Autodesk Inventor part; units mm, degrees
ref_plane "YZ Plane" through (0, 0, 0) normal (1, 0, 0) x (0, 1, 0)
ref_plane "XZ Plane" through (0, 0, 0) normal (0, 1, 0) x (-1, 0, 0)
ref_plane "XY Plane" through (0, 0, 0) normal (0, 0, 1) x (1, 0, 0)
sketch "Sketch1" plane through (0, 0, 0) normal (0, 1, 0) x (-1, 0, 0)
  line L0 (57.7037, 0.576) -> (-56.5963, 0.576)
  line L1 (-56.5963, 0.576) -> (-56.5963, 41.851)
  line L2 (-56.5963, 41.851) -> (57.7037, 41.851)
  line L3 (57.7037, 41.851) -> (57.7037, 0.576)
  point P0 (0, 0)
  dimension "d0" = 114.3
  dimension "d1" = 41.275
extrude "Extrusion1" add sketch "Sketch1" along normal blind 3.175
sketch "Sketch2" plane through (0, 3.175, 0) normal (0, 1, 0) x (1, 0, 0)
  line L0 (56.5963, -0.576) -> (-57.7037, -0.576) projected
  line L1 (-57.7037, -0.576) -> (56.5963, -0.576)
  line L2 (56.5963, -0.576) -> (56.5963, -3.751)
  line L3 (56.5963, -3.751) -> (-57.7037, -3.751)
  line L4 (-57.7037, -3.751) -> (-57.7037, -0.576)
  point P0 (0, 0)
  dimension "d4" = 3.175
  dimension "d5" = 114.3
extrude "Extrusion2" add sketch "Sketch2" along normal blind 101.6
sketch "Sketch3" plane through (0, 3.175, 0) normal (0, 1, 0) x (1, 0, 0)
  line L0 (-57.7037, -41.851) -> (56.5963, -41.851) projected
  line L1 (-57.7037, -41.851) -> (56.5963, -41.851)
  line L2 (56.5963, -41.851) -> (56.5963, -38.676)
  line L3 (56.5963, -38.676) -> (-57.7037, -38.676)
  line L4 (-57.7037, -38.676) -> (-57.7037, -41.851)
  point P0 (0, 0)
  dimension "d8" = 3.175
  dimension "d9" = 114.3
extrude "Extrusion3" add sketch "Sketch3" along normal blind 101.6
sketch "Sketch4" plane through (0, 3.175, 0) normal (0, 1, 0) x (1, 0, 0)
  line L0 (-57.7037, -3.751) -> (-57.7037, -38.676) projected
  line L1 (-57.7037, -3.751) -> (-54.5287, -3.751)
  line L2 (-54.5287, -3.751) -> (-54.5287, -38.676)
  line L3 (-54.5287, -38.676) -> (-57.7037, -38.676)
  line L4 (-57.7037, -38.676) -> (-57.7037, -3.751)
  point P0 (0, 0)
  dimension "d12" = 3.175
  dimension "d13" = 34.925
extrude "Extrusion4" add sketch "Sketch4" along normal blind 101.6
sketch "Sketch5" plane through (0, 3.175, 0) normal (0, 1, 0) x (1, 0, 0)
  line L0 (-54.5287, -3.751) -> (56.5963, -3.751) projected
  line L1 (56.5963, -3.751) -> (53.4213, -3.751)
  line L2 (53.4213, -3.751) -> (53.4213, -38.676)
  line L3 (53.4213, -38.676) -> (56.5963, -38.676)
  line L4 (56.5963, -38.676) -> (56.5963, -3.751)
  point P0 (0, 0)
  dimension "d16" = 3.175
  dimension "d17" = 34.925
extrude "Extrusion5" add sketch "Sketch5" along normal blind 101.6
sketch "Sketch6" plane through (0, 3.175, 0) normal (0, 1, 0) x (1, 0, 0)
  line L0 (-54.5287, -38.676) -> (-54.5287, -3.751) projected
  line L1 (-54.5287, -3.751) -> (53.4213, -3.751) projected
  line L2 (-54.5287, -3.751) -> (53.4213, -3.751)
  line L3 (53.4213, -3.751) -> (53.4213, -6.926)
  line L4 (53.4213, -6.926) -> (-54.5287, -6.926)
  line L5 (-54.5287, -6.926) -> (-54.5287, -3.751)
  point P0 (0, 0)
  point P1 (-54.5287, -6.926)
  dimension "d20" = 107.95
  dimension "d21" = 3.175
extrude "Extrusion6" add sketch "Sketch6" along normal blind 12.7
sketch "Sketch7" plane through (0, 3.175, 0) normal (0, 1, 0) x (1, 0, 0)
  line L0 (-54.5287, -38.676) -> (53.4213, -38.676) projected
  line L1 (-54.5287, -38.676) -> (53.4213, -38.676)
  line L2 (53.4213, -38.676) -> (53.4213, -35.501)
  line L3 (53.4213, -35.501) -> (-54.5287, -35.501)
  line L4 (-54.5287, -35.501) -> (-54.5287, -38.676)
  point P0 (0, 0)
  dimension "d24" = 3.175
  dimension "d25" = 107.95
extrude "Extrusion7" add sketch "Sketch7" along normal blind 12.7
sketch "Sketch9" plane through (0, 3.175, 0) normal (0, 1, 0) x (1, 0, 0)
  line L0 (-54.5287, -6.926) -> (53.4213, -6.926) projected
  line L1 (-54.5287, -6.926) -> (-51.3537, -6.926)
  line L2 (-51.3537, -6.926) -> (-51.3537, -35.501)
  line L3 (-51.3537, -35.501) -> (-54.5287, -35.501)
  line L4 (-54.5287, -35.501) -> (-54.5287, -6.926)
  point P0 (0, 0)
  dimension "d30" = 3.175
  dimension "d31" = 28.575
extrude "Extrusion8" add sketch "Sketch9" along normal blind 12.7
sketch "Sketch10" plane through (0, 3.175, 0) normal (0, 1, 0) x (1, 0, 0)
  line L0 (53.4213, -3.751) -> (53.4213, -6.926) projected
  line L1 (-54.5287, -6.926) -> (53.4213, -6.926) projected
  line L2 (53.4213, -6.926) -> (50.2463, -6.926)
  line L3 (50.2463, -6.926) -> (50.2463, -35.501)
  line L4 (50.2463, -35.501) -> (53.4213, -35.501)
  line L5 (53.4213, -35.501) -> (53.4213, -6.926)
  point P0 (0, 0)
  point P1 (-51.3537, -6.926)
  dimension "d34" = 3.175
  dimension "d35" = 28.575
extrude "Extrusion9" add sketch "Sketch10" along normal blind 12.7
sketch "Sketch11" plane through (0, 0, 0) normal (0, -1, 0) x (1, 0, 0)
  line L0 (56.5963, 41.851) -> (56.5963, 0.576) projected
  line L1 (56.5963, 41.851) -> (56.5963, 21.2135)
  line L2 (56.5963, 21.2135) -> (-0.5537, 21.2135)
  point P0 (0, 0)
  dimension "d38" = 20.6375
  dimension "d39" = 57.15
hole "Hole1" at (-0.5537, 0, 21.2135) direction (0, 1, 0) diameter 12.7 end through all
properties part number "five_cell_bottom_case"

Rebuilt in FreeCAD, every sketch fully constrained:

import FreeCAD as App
import Part
import Sketcher

V = App.Vector
Q = App.Units.Quantity

doc = App.newDocument("Part")
params = doc.addObject("Spreadsheet::Sheet", "Params")
for row, (alias, value) in enumerate([
    ("sketch1_width", "4.5 in"),
    ("sketch1_height", "1.625 in"),
    ("pad1_length", "0.125 in"),
    ("sketch2_width", "4.5 in"),
    ("sketch2_height", "0.125 in"),
    ("pad2_length", "4 in"),
    ("sketch3_width", "4.5 in"),
    ("sketch3_height", "0.125 in"),
    ("pad3_length", "4 in"),
    ("sketch4_width", "0.125 in"),
    ("sketch4_height", "1.375 in"),
    ("pad4_length", "4 in"),
    ("sketch5_width", "0.125 in"),
    ("sketch5_height", "1.375 in"),
    ("pad5_length", "4 in"),
    ("sketch6_width", "4.25 in"),
    ("sketch6_height", "0.125 in"),
    ("pad6_length", "0.5 in"),
    ("sketch7_width", "4.25 in"),
    ("sketch7_height", "0.125 in"),
    ("pad7_length", "0.5 in"),
    ("sketch8_width", "0.125 in"),
    ("sketch8_height", "1.125 in"),
    ("pad8_length", "0.5 in"),
    ("sketch9_width", "0.125 in"),
    ("sketch9_height", "1.125 in"),
    ("pad9_length", "0.5 in"),
    ("sketch10_diameter", "0.5 in"),
    ("hole_diameter", "0.5 in"),
], start=1):
    params.set(f"A{row}", alias)
    params.set(f"B{row}", "=" + value)
    params.setAlias(f"B{row}", alias)

body = doc.addObject("PartDesign::Body", "Body")

sketch1 = body.newObject("Sketcher::SketchObject", "Sketch")
sketch1.AttachmentSupport = (doc.getObject("XZ_Plane"), [""])
sketch1.MapMode = "FlatFace"
sketch1.addGeometry(Part.LineSegment(V(56.5963, 0.576, 0), V(-57.7037, 0.576, 0)), False)
sketch1.addGeometry(Part.LineSegment(V(-57.7037, 0.576, 0), V(-57.7037, 41.851, 0)), False)
sketch1.addGeometry(Part.LineSegment(V(-57.7037, 41.851, 0), V(56.5963, 41.851, 0)), False)
sketch1.addGeometry(Part.LineSegment(V(56.5963, 41.851, 0), V(56.5963, 0.576, 0)), False)
sketch1.addConstraint(Sketcher.Constraint("Coincident", 0, 2, 1, 1))
sketch1.addConstraint(Sketcher.Constraint("Coincident", 1, 2, 2, 1))
sketch1.addConstraint(Sketcher.Constraint("Coincident", 2, 2, 3, 1))
sketch1.addConstraint(Sketcher.Constraint("Coincident", 3, 2, 0, 1))
sketch1.addConstraint(Sketcher.Constraint("Horizontal", 0))
sketch1.addConstraint(Sketcher.Constraint("Vertical", 1))
sketch1.addConstraint(Sketcher.Constraint("Horizontal", 2))
sketch1.addConstraint(Sketcher.Constraint("Vertical", 3))
sketch1.addConstraint(Sketcher.Constraint("DistanceX", 0, 2, 0, 1, Q("4.5 in")))
sketch1.addConstraint(Sketcher.Constraint("DistanceY", 1, 1, 1, 2, Q("1.625 in")))
sketch1.addConstraint(Sketcher.Constraint("DistanceX", 0, 2, -1, 1, Q("2.2718 in")))
sketch1.addConstraint(Sketcher.Constraint("DistanceY", -1, 1, 0, 2, 0.576))
sketch1.setExpression("Constraints[8]", "Params.sketch1_width")
sketch1.setExpression("Constraints[9]", "Params.sketch1_height")
pad1 = body.newObject("PartDesign::Pad", "Pad")
pad1.Profile = sketch1
pad1.setExpression("Length", "Params.pad1_length")
pad1.Reversed = True

sketch2 = body.newObject("Sketcher::SketchObject", "Sketch001")
sketch2.AttachmentSupport = (doc.getObject("XZ_Plane"), [""])
sketch2.MapMode = "FlatFace"
sketch2.AttachmentOffset = App.Placement(V(0, 0, -0.125 * 25.4), App.Rotation())
sketch2.addGeometry(Part.LineSegment(V(56.5963, 3.751, 0), V(56.5963, 0.576, 0)), False)
sketch2.addGeometry(Part.LineSegment(V(56.5963, 0.576, 0), V(-57.7037, 0.576, 0)), False)
sketch2.addGeometry(Part.LineSegment(V(-57.7037, 0.576, 0), V(-57.7037, 3.751, 0)), False)
sketch2.addGeometry(Part.LineSegment(V(-57.7037, 3.751, 0), V(56.5963, 3.751, 0)), False)
sketch2.addConstraint(Sketcher.Constraint("Coincident", 0, 2, 1, 1))
sketch2.addConstraint(Sketcher.Constraint("Coincident", 1, 2, 2, 1))
sketch2.addConstraint(Sketcher.Constraint("Coincident", 2, 2, 3, 1))
sketch2.addConstraint(Sketcher.Constraint("Coincident", 3, 2, 0, 1))
sketch2.addConstraint(Sketcher.Constraint("Vertical", 0))
sketch2.addConstraint(Sketcher.Constraint("Horizontal", 1))
sketch2.addConstraint(Sketcher.Constraint("Vertical", 2))
sketch2.addConstraint(Sketcher.Constraint("Horizontal", 3))
sketch2.addConstraint(Sketcher.Constraint("DistanceX", 1, 2, 1, 1, Q("4.5 in")))
sketch2.addConstraint(Sketcher.Constraint("DistanceY", 0, 2, 0, 1, Q("0.125 in")))
sketch2.addConstraint(Sketcher.Constraint("DistanceX", -1, 1, 0, 2, Q("2.2282 in")))
sketch2.addConstraint(Sketcher.Constraint("DistanceY", -1, 1, 0, 2, 0.576))
sketch2.setExpression("Constraints[8]", "Params.sketch2_width")
sketch2.setExpression("Constraints[9]", "Params.sketch2_height")
pad2 = body.newObject("PartDesign::Pad", "Pad001")
pad2.Profile = sketch2
pad2.setExpression("Length", "Params.pad2_length")
pad2.Reversed = True

sketch3 = body.newObject("Sketcher::SketchObject", "Sketch002")
sketch3.AttachmentSupport = (doc.getObject("XZ_Plane"), [""])
sketch3.MapMode = "FlatFace"
sketch3.AttachmentOffset = App.Placement(V(0, 0, -0.125 * 25.4), App.Rotation())
sketch3.addGeometry(Part.LineSegment(V(-57.7037, 38.676, 0), V(-57.7037, 41.851, 0)), False)
sketch3.addGeometry(Part.LineSegment(V(-57.7037, 41.851, 0), V(56.5963, 41.851, 0)), False)
sketch3.addGeometry(Part.LineSegment(V(56.5963, 41.851, 0), V(56.5963, 38.676, 0)), False)
sketch3.addGeometry(Part.LineSegment(V(56.5963, 38.676, 0), V(-57.7037, 38.676, 0)), False)
sketch3.addConstraint(Sketcher.Constraint("Coincident", 0, 2, 1, 1))
sketch3.addConstraint(Sketcher.Constraint("Coincident", 1, 2, 2, 1))
sketch3.addConstraint(Sketcher.Constraint("Coincident", 2, 2, 3, 1))
sketch3.addConstraint(Sketcher.Constraint("Coincident", 3, 2, 0, 1))
sketch3.addConstraint(Sketcher.Constraint("Vertical", 0))
sketch3.addConstraint(Sketcher.Constraint("Horizontal", 1))
sketch3.addConstraint(Sketcher.Constraint("Vertical", 2))
sketch3.addConstraint(Sketcher.Constraint("Horizontal", 3))
sketch3.addConstraint(Sketcher.Constraint("DistanceX", 1, 1, 1, 2, Q("4.5 in")))
sketch3.addConstraint(Sketcher.Constraint("DistanceY", 0, 1, 0, 2, Q("0.125 in")))
sketch3.addConstraint(Sketcher.Constraint("DistanceX", 0, 2, -1, 1, Q("2.2718 in")))
sketch3.addConstraint(Sketcher.Constraint("DistanceY", -1, 1, 0, 2, 41.851))
sketch3.setExpression("Constraints[8]", "Params.sketch3_width")
sketch3.setExpression("Constraints[9]", "Params.sketch3_height")
pad3 = body.newObject("PartDesign::Pad", "Pad002")
pad3.Profile = sketch3
pad3.setExpression("Length", "Params.pad3_length")
pad3.Reversed = True

sketch4 = body.newObject("Sketcher::SketchObject", "Sketch003")
sketch4.AttachmentSupport = (doc.getObject("XZ_Plane"), [""])
sketch4.MapMode = "FlatFace"
sketch4.AttachmentOffset = App.Placement(V(0, 0, -0.125 * 25.4), App.Rotation())
sketch4.addGeometry(Part.LineSegment(V(-54.5287, 3.751, 0), V(-57.7037, 3.751, 0)), False)
sketch4.addGeometry(Part.LineSegment(V(-57.7037, 3.751, 0), V(-57.7037, 38.676, 0)), False)
sketch4.addGeometry(Part.LineSegment(V(-57.7037, 38.676, 0), V(-54.5287, 38.676, 0)), False)
sketch4.addGeometry(Part.LineSegment(V(-54.5287, 38.676, 0), V(-54.5287, 3.751, 0)), False)
sketch4.addConstraint(Sketcher.Constraint("Coincident", 0, 2, 1, 1))
sketch4.addConstraint(Sketcher.Constraint("Coincident", 1, 2, 2, 1))
sketch4.addConstraint(Sketcher.Constraint("Coincident", 2, 2, 3, 1))
sketch4.addConstraint(Sketcher.Constraint("Coincident", 3, 2, 0, 1))
sketch4.addConstraint(Sketcher.Constraint("Horizontal", 0))
sketch4.addConstraint(Sketcher.Constraint("Vertical", 1))
sketch4.addConstraint(Sketcher.Constraint("Horizontal", 2))
sketch4.addConstraint(Sketcher.Constraint("Vertical", 3))
sketch4.addConstraint(Sketcher.Constraint("DistanceX", 0, 2, 0, 1, Q("0.125 in")))
sketch4.addConstraint(Sketcher.Constraint("DistanceY", 1, 1, 1, 2, Q("1.375 in")))
sketch4.addConstraint(Sketcher.Constraint("DistanceX", 0, 2, -1, 1, Q("2.2718 in")))
sketch4.addConstraint(Sketcher.Constraint("DistanceY", -1, 1, 0, 2, 3.751))
sketch4.setExpression("Constraints[8]", "Params.sketch4_width")
sketch4.setExpression("Constraints[9]", "Params.sketch4_height")
pad4 = body.newObject("PartDesign::Pad", "Pad003")
pad4.Profile = sketch4
pad4.setExpression("Length", "Params.pad4_length")
pad4.Reversed = True

sketch5 = body.newObject("Sketcher::SketchObject", "Sketch004")
sketch5.AttachmentSupport = (doc.getObject("XZ_Plane"), [""])
sketch5.MapMode = "FlatFace"
sketch5.AttachmentOffset = App.Placement(V(0, 0, -0.125 * 25.4), App.Rotation())
sketch5.addGeometry(Part.LineSegment(V(56.5963, 3.751, 0), V(53.4213, 3.751, 0)), False)
sketch5.addGeometry(Part.LineSegment(V(53.4213, 3.751, 0), V(53.4213, 38.676, 0)), False)
sketch5.addGeometry(Part.LineSegment(V(53.4213, 38.676, 0), V(56.5963, 38.676, 0)), False)
sketch5.addGeometry(Part.LineSegment(V(56.5963, 38.676, 0), V(56.5963, 3.751, 0)), False)
sketch5.addConstraint(Sketcher.Constraint("Coincident", 0, 2, 1, 1))
sketch5.addConstraint(Sketcher.Constraint("Coincident", 1, 2, 2, 1))
sketch5.addConstraint(Sketcher.Constraint("Coincident", 2, 2, 3, 1))
sketch5.addConstraint(Sketcher.Constraint("Coincident", 3, 2, 0, 1))
sketch5.addConstraint(Sketcher.Constraint("Horizontal", 0))
sketch5.addConstraint(Sketcher.Constraint("Vertical", 1))
sketch5.addConstraint(Sketcher.Constraint("Horizontal", 2))
sketch5.addConstraint(Sketcher.Constraint("Vertical", 3))
sketch5.addConstraint(Sketcher.Constraint("DistanceX", 0, 2, 0, 1, Q("0.125 in")))
sketch5.addConstraint(Sketcher.Constraint("DistanceY", 1, 1, 1, 2, Q("1.375 in")))
sketch5.addConstraint(Sketcher.Constraint("DistanceX", -1, 1, 0, 2, Q("2.1032 in")))
sketch5.addConstraint(Sketcher.Constraint("DistanceY", -1, 1, 0, 2, 3.751))
sketch5.setExpression("Constraints[8]", "Params.sketch5_width")
sketch5.setExpression("Constraints[9]", "Params.sketch5_height")
pad5 = body.newObject("PartDesign::Pad", "Pad004")
pad5.Profile = sketch5
pad5.setExpression("Length", "Params.pad5_length")
pad5.Reversed = True

sketch6 = body.newObject("Sketcher::SketchObject", "Sketch005")
sketch6.AttachmentSupport = (doc.getObject("XZ_Plane"), [""])
sketch6.MapMode = "FlatFace"
sketch6.AttachmentOffset = App.Placement(V(0, 0, -0.125 * 25.4), App.Rotation())
sketch6.addGeometry(Part.LineSegment(V(-54.5287, 3.751, 0), V(-54.5287, 6.926, 0)), False)
sketch6.addGeometry(Part.LineSegment(V(-54.5287, 6.926, 0), V(53.4213, 6.926, 0)), False)
sketch6.addGeometry(Part.LineSegment(V(53.4213, 6.926, 0), V(53.4213, 3.751, 0)), False)
sketch6.addGeometry(Part.LineSegment(V(53.4213, 3.751, 0), V(-54.5287, 3.751, 0)), False)
sketch6.addConstraint(Sketcher.Constraint("Coincident", 0, 2, 1, 1))
sketch6.addConstraint(Sketcher.Constraint("Coincident", 1, 2, 2, 1))
sketch6.addConstraint(Sketcher.Constraint("Coincident", 2, 2, 3, 1))
sketch6.addConstraint(Sketcher.Constraint("Coincident", 3, 2, 0, 1))
sketch6.addConstraint(Sketcher.Constraint("Vertical", 0))
sketch6.addConstraint(Sketcher.Constraint("Horizontal", 1))
sketch6.addConstraint(Sketcher.Constraint("Vertical", 2))
sketch6.addConstraint(Sketcher.Constraint("Horizontal", 3))
sketch6.addConstraint(Sketcher.Constraint("DistanceX", 1, 1, 1, 2, Q("4.25 in")))
sketch6.addConstraint(Sketcher.Constraint("DistanceY", 0, 1, 0, 2, Q("0.125 in")))
sketch6.addConstraint(Sketcher.Constraint("DistanceX", 0, 2, -1, 1, Q("2.1468 in")))
sketch6.addConstraint(Sketcher.Constraint("DistanceY", -1, 1, 0, 2, 6.926))
sketch6.setExpression("Constraints[8]", "Params.sketch6_width")
sketch6.setExpression("Constraints[9]", "Params.sketch6_height")
pad6 = body.newObject("PartDesign::Pad", "Pad005")
pad6.Profile = sketch6
pad6.setExpression("Length", "Params.pad6_length")
pad6.Reversed = True

sketch7 = body.newObject("Sketcher::SketchObject", "Sketch006")
sketch7.AttachmentSupport = (doc.getObject("XZ_Plane"), [""])
sketch7.MapMode = "FlatFace"
sketch7.AttachmentOffset = App.Placement(V(0, 0, -0.125 * 25.4), App.Rotation())
sketch7.addGeometry(Part.LineSegment(V(-54.5287, 35.501, 0), V(-54.5287, 38.676, 0)), False)
sketch7.addGeometry(Part.LineSegment(V(-54.5287, 38.676, 0), V(53.4213, 38.676, 0)), False)
sketch7.addGeometry(Part.LineSegment(V(53.4213, 38.676, 0), V(53.4213, 35.501, 0)), False)
sketch7.addGeometry(Part.LineSegment(V(53.4213, 35.501, 0), V(-54.5287, 35.501, 0)), False)
sketch7.addConstraint(Sketcher.Constraint("Coincident", 0, 2, 1, 1))
sketch7.addConstraint(Sketcher.Constraint("Coincident", 1, 2, 2, 1))
sketch7.addConstraint(Sketcher.Constraint("Coincident", 2, 2, 3, 1))
sketch7.addConstraint(Sketcher.Constraint("Coincident", 3, 2, 0, 1))
sketch7.addConstraint(Sketcher.Constraint("Vertical", 0))
sketch7.addConstraint(Sketcher.Constraint("Horizontal", 1))
sketch7.addConstraint(Sketcher.Constraint("Vertical", 2))
sketch7.addConstraint(Sketcher.Constraint("Horizontal", 3))
sketch7.addConstraint(Sketcher.Constraint("DistanceX", 1, 1, 1, 2, Q("4.25 in")))
sketch7.addConstraint(Sketcher.Constraint("DistanceY", 0, 1, 0, 2, Q("0.125 in")))
sketch7.addConstraint(Sketcher.Constraint("DistanceX", 0, 2, -1, 1, Q("2.1468 in")))
sketch7.addConstraint(Sketcher.Constraint("DistanceY", -1, 1, 0, 2, 38.676))
sketch7.setExpression("Constraints[8]", "Params.sketch7_width")
sketch7.setExpression("Constraints[9]", "Params.sketch7_height")
pad7 = body.newObject("PartDesign::Pad", "Pad006")
pad7.Profile = sketch7
pad7.setExpression("Length", "Params.pad7_length")
pad7.Reversed = True

sketch8 = body.newObject("Sketcher::SketchObject", "Sketch007")
sketch8.AttachmentSupport = (doc.getObject("XZ_Plane"), [""])
sketch8.MapMode = "FlatFace"
sketch8.AttachmentOffset = App.Placement(V(0, 0, -0.125 * 25.4), App.Rotation())
sketch8.addGeometry(Part.LineSegment(V(-51.3537, 6.926, 0), V(-54.5287, 6.926, 0)), False)
sketch8.addGeometry(Part.LineSegment(V(-54.5287, 6.926, 0), V(-54.5287, 35.501, 0)), False)
sketch8.addGeometry(Part.LineSegment(V(-54.5287, 35.501, 0), V(-51.3537, 35.501, 0)), False)
sketch8.addGeometry(Part.LineSegment(V(-51.3537, 35.501, 0), V(-51.3537, 6.926, 0)), False)
sketch8.addConstraint(Sketcher.Constraint("Coincident", 0, 2, 1, 1))
sketch8.addConstraint(Sketcher.Constraint("Coincident", 1, 2, 2, 1))
sketch8.addConstraint(Sketcher.Constraint("Coincident", 2, 2, 3, 1))
sketch8.addConstraint(Sketcher.Constraint("Coincident", 3, 2, 0, 1))
sketch8.addConstraint(Sketcher.Constraint("Horizontal", 0))
sketch8.addConstraint(Sketcher.Constraint("Vertical", 1))
sketch8.addConstraint(Sketcher.Constraint("Horizontal", 2))
sketch8.addConstraint(Sketcher.Constraint("Vertical", 3))
sketch8.addConstraint(Sketcher.Constraint("DistanceX", 0, 2, 0, 1, Q("0.125 in")))
sketch8.addConstraint(Sketcher.Constraint("DistanceY", 1, 1, 1, 2, Q("1.125 in")))
sketch8.addConstraint(Sketcher.Constraint("DistanceX", 0, 2, -1, 1, Q("2.1468 in")))
sketch8.addConstraint(Sketcher.Constraint("DistanceY", -1, 1, 0, 2, 6.926))
sketch8.setExpression("Constraints[8]", "Params.sketch8_width")
sketch8.setExpression("Constraints[9]", "Params.sketch8_height")
pad8 = body.newObject("PartDesign::Pad", "Pad007")
pad8.Profile = sketch8
pad8.setExpression("Length", "Params.pad8_length")
pad8.Reversed = True

sketch9 = body.newObject("Sketcher::SketchObject", "Sketch008")
sketch9.AttachmentSupport = (doc.getObject("XZ_Plane"), [""])
sketch9.MapMode = "FlatFace"
sketch9.AttachmentOffset = App.Placement(V(0, 0, -0.125 * 25.4), App.Rotation())
sketch9.addGeometry(Part.LineSegment(V(53.4213, 6.926, 0), V(50.2463, 6.926, 0)), False)
sketch9.addGeometry(Part.LineSegment(V(50.2463, 6.926, 0), V(50.2463, 35.501, 0)), False)
sketch9.addGeometry(Part.LineSegment(V(50.2463, 35.501, 0), V(53.4213, 35.501, 0)), False)
sketch9.addGeometry(Part.LineSegment(V(53.4213, 35.501, 0), V(53.4213, 6.926, 0)), False)
sketch9.addConstraint(Sketcher.Constraint("Coincident", 0, 2, 1, 1))
sketch9.addConstraint(Sketcher.Constraint("Coincident", 1, 2, 2, 1))
sketch9.addConstraint(Sketcher.Constraint("Coincident", 2, 2, 3, 1))
sketch9.addConstraint(Sketcher.Constraint("Coincident", 3, 2, 0, 1))
sketch9.addConstraint(Sketcher.Constraint("Horizontal", 0))
sketch9.addConstraint(Sketcher.Constraint("Vertical", 1))
sketch9.addConstraint(Sketcher.Constraint("Horizontal", 2))
sketch9.addConstraint(Sketcher.Constraint("Vertical", 3))
sketch9.addConstraint(Sketcher.Constraint("DistanceX", 0, 2, 0, 1, Q("0.125 in")))
sketch9.addConstraint(Sketcher.Constraint("DistanceY", 1, 1, 1, 2, Q("1.125 in")))
sketch9.addConstraint(Sketcher.Constraint("DistanceX", -1, 1, 0, 2, Q("1.9782 in")))
sketch9.addConstraint(Sketcher.Constraint("DistanceY", -1, 1, 0, 2, 6.926))
sketch9.setExpression("Constraints[8]", "Params.sketch9_width")
sketch9.setExpression("Constraints[9]", "Params.sketch9_height")
pad9 = body.newObject("PartDesign::Pad", "Pad008")
pad9.Profile = sketch9
pad9.setExpression("Length", "Params.pad9_length")
pad9.Reversed = True

sketch10 = body.newObject("Sketcher::SketchObject", "Sketch009")
sketch10.AttachmentSupport = (doc.getObject("XZ_Plane"), [""])
sketch10.MapMode = "FlatFace"
sketch10.addGeometry(Part.Circle(V(-0.5537, 21.2135, 0), V(0, 0, 1), 6.35), False)
sketch10.addConstraint(Sketcher.Constraint("Diameter", 0, Q("0.5 in")))
sketch10.addConstraint(Sketcher.Constraint("DistanceX", 0, 3, -1, 1, Q("0.0218 in")))
sketch10.addConstraint(Sketcher.Constraint("DistanceY", -1, 1, 0, 3, 21.2135))
sketch10.setExpression("Constraints[0]", "Params.sketch10_diameter")
doc.recompute()
hole = body.newObject("PartDesign::Hole", "Hole")
hole.Profile = sketch10
hole.ThreadType = "None"
hole.setExpression("Diameter", "Params.hole_diameter")
hole.DepthType = "ThroughAll"

doc.recompute()
